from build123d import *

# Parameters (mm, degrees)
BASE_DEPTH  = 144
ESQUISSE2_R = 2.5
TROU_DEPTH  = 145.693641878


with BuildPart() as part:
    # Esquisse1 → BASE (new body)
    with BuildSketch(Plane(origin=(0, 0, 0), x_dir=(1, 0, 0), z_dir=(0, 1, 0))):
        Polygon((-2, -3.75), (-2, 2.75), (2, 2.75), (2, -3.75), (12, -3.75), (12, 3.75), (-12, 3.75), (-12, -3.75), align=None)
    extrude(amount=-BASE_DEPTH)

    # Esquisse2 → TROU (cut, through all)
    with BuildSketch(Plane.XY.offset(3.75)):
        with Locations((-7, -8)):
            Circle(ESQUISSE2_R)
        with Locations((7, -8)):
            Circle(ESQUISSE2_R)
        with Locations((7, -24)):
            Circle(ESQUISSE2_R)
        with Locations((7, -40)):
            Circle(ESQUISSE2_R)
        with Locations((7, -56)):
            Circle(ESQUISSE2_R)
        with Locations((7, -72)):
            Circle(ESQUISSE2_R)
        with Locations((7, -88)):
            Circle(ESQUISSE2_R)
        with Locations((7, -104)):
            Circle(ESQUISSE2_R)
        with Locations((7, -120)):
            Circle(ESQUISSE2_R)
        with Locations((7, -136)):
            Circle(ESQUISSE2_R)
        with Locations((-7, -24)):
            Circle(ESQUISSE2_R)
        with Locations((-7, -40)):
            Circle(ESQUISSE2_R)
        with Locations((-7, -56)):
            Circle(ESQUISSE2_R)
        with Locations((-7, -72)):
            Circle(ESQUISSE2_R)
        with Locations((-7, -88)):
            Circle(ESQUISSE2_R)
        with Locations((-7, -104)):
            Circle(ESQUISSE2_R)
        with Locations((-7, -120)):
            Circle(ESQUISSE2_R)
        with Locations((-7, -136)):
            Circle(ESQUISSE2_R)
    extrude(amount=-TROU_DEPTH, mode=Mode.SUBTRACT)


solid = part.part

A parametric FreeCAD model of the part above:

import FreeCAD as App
import Part
import Sketcher
from FreeCAD import Vector

doc = App.newDocument("Part")
body = doc.addObject("PartDesign::Body", "Body")

# Sketch on XZ plane
sketch1 = body.newObject("Sketcher::SketchObject", "Sketch")
sketch1.AttachmentSupport = (doc.getObject("XZ_Plane"), [""])
sketch1.MapMode = "FlatFace"
sketch1.addGeometry([
    Part.LineSegment(Vector(-2, 3.8, 0), Vector(-2, -2.8, 0)),  # 0
    Part.LineSegment(Vector(-2, -2.8, 0), Vector(2, -2.8, 0)),  # 1
    Part.LineSegment(Vector(2, -2.8, 0), Vector(2, 3.8, 0)),  # 2
    Part.LineSegment(Vector(2, 3.8, 0), Vector(12, 3.8, 0)),  # 3
    Part.LineSegment(Vector(12, 3.8, 0), Vector(12, -3.8, 0)),  # 4
    Part.LineSegment(Vector(12, -3.8, 0), Vector(-12, -3.8, 0)),  # 5
    Part.LineSegment(Vector(-12, -3.8, 0), Vector(-12, 3.8, 0)),  # 6
    Part.LineSegment(Vector(-12, 3.8, 0), Vector(-2, 3.8, 0)),  # 7
], False)
sketch1.addConstraint([
    Sketcher.Constraint("Coincident", 0, 2, 1, 1),
    Sketcher.Constraint("Coincident", 1, 2, 2, 1),
    Sketcher.Constraint("Coincident", 2, 2, 3, 1),
    Sketcher.Constraint("Coincident", 3, 2, 4, 1),
    Sketcher.Constraint("Coincident", 4, 2, 5, 1),
    Sketcher.Constraint("Coincident", 5, 2, 6, 1),
    Sketcher.Constraint("Coincident", 6, 2, 7, 1),
    Sketcher.Constraint("Coincident", 7, 2, 0, 1),
    Sketcher.Constraint("Vertical", 0),
    Sketcher.Constraint("Horizontal", 1),
    Sketcher.Constraint("Vertical", 2),
    Sketcher.Constraint("Horizontal", 3),
    Sketcher.Constraint("Vertical", 4),
    Sketcher.Constraint("Horizontal", 5),
    Sketcher.Constraint("Vertical", 6),
    Sketcher.Constraint("Horizontal", 7),
    Sketcher.Constraint("Symmetric", 3, 2, 5, 2, -1, 1),
    Sketcher.Constraint("Symmetric", 2, 2, 7, 2, -2),
    Sketcher.Constraint("DistanceX", 1, 1, 1, 2, 4.0),
    Sketcher.Constraint("DistanceX", 3, 1, 3, 2, 10.0),
    Sketcher.Constraint("DistanceY", 0, 2, 0, 1, 6.5),
    Sketcher.Constraint("DistanceY", 4, 2, 4, 1, 7.5),
])
pad1 = body.newObject("PartDesign::Pad", "Pad")
pad1.Profile = sketch1
pad1.Length = 144

# Sketch on XY plane
sketch2 = body.newObject("Sketcher::SketchObject", "Sketch001")
sketch2.AttachmentSupport = (doc.getObject("XY_Plane"), [""])
sketch2.MapMode = "FlatFace"
sketch2.AttachmentOffset = App.Placement(Vector(0, 0, 3.75), App.Rotation())
sketch2.addGeometry([
    Part.Circle(Vector(-7, -8, 0), Vector(0, 0, 1), 2.5),  # 0
    Part.Circle(Vector(7, -8, 0), Vector(0, 0, 1), 2.5),  # 1
    Part.Circle(Vector(7, -24, 0), Vector(0, 0, 1), 2.5),  # 2
    Part.Circle(Vector(7, -40, 0), Vector(0, 0, 1), 2.5),  # 3
    Part.Circle(Vector(7, -56, 0), Vector(0, 0, 1), 2.5),  # 4
    Part.Circle(Vector(7, -72, 0), Vector(0, 0, 1), 2.5),  # 5
    Part.Circle(Vector(7, -88, 0), Vector(0, 0, 1), 2.5),  # 6
    Part.Circle(Vector(7, -104, 0), Vector(0, 0, 1), 2.5),  # 7
    Part.Circle(Vector(7, -120, 0), Vector(0, 0, 1), 2.5),  # 8
    Part.Circle(Vector(7, -136, 0), Vector(0, 0, 1), 2.5),  # 9
    Part.Circle(Vector(-7, -24, 0), Vector(0, 0, 1), 2.5),  # 10
    Part.Circle(Vector(-7, -40, 0), Vector(0, 0, 1), 2.5),  # 11
    Part.Circle(Vector(-7, -56, 0), Vector(0, 0, 1), 2.5),  # 12
    Part.Circle(Vector(-7, -72, 0), Vector(0, 0, 1), 2.5),  # 13
    Part.Circle(Vector(-7, -88, 0), Vector(0, 0, 1), 2.5),  # 14
    Part.Circle(Vector(-7, -104, 0), Vector(0, 0, 1), 2.5),  # 15
    Part.Circle(Vector(-7, -120, 0), Vector(0, 0, 1), 2.5),  # 16
    Part.Circle(Vector(-7, -136, 0), Vector(0, 0, 1), 2.5),  # 17
], False)
sketch2.addConstraint([
    Sketcher.Constraint("Equal", 0, 1),
    Sketcher.Constraint("Equal", 1, 2),
    Sketcher.Constraint("Equal", 2, 3),
    Sketcher.Constraint("Equal", 3, 4),
    Sketcher.Constraint("Equal", 4, 5),
    Sketcher.Constraint("Equal", 5, 6),
    Sketcher.Constraint("Equal", 6, 7),
    Sketcher.Constraint("Equal", 7, 8),
    Sketcher.Constraint("Equal", 8, 9),
    Sketcher.Constraint("Equal", 9, 10),
    Sketcher.Constraint("Equal", 10, 11),
    Sketcher.Constraint("Equal", 11, 12),
    Sketcher.Constraint("Equal", 12, 13),
    Sketcher.Constraint("Equal", 13, 14),
    Sketcher.Constraint("Equal", 14, 15),
    Sketcher.Constraint("Equal", 15, 16),
    Sketcher.Constraint("Equal", 16, 17),
    Sketcher.Constraint("Symmetric", 0, 3, 1, 3, -2),
    Sketcher.Constraint("Symmetric", 2, 3, 10, 3, -2),
    Sketcher.Constraint("Symmetric", 3, 3, 11, 3, -2),
    Sketcher.Constraint("Symmetric", 4, 3, 12, 3, -2),
    Sketcher.Constraint("Symmetric", 5, 3, 13, 3, -2),
    Sketcher.Constraint("Symmetric", 6, 3, 14, 3, -2),
    Sketcher.Constraint("Symmetric", 7, 3, 15, 3, -2),
    Sketcher.Constraint("Symmetric", 8, 3, 16, 3, -2),
    Sketcher.Constraint("Symmetric", 9, 3, 17, 3, -2),
    Sketcher.Constraint("Vertical", 1, 3, 2, 3),
    Sketcher.Constraint("Vertical", 2, 3, 3, 3),
    Sketcher.Constraint("Vertical", 3, 3, 4, 3),
    Sketcher.Constraint("Vertical", 4, 3, 5, 3),
    Sketcher.Constraint("Vertical", 5, 3, 6, 3),
    Sketcher.Constraint("Vertical", 6, 3, 7, 3),
    Sketcher.Constraint("Vertical", 7, 3, 8, 3),
    Sketcher.Constraint("Vertical", 8, 3, 9, 3),
    Sketcher.Constraint("Diameter", 0, 5.0),
    Sketcher.Constraint("DistanceX", 0, 3, -1, 1, 7.0),
    Sketcher.Constraint("DistanceY", 0, 3, -1, 1, 8.0),
    Sketcher.Constraint("DistanceY", 2, 3, -1, 1, 24.0),
    Sketcher.Constraint("DistanceY", 3, 3, -1, 1, 40.0),
    Sketcher.Constraint("DistanceY", 4, 3, -1, 1, 56.0),
    Sketcher.Constraint("DistanceY", 5, 3, -1, 1, 72.0),
    Sketcher.Constraint("DistanceY", 6, 3, -1, 1, 88.0),
    Sketcher.Constraint("DistanceY", 7, 3, -1, 1, 104.0),
    Sketcher.Constraint("DistanceY", 8, 3, -1, 1, 120.0),
    Sketcher.Constraint("DistanceY", 9, 3, -1, 1, 136.0),
])
pocket1 = body.newObject("PartDesign::Pocket", "Pocket")
pocket1.Profile = sketch2
pocket1.Type = "ThroughAll"

doc.recompute()
